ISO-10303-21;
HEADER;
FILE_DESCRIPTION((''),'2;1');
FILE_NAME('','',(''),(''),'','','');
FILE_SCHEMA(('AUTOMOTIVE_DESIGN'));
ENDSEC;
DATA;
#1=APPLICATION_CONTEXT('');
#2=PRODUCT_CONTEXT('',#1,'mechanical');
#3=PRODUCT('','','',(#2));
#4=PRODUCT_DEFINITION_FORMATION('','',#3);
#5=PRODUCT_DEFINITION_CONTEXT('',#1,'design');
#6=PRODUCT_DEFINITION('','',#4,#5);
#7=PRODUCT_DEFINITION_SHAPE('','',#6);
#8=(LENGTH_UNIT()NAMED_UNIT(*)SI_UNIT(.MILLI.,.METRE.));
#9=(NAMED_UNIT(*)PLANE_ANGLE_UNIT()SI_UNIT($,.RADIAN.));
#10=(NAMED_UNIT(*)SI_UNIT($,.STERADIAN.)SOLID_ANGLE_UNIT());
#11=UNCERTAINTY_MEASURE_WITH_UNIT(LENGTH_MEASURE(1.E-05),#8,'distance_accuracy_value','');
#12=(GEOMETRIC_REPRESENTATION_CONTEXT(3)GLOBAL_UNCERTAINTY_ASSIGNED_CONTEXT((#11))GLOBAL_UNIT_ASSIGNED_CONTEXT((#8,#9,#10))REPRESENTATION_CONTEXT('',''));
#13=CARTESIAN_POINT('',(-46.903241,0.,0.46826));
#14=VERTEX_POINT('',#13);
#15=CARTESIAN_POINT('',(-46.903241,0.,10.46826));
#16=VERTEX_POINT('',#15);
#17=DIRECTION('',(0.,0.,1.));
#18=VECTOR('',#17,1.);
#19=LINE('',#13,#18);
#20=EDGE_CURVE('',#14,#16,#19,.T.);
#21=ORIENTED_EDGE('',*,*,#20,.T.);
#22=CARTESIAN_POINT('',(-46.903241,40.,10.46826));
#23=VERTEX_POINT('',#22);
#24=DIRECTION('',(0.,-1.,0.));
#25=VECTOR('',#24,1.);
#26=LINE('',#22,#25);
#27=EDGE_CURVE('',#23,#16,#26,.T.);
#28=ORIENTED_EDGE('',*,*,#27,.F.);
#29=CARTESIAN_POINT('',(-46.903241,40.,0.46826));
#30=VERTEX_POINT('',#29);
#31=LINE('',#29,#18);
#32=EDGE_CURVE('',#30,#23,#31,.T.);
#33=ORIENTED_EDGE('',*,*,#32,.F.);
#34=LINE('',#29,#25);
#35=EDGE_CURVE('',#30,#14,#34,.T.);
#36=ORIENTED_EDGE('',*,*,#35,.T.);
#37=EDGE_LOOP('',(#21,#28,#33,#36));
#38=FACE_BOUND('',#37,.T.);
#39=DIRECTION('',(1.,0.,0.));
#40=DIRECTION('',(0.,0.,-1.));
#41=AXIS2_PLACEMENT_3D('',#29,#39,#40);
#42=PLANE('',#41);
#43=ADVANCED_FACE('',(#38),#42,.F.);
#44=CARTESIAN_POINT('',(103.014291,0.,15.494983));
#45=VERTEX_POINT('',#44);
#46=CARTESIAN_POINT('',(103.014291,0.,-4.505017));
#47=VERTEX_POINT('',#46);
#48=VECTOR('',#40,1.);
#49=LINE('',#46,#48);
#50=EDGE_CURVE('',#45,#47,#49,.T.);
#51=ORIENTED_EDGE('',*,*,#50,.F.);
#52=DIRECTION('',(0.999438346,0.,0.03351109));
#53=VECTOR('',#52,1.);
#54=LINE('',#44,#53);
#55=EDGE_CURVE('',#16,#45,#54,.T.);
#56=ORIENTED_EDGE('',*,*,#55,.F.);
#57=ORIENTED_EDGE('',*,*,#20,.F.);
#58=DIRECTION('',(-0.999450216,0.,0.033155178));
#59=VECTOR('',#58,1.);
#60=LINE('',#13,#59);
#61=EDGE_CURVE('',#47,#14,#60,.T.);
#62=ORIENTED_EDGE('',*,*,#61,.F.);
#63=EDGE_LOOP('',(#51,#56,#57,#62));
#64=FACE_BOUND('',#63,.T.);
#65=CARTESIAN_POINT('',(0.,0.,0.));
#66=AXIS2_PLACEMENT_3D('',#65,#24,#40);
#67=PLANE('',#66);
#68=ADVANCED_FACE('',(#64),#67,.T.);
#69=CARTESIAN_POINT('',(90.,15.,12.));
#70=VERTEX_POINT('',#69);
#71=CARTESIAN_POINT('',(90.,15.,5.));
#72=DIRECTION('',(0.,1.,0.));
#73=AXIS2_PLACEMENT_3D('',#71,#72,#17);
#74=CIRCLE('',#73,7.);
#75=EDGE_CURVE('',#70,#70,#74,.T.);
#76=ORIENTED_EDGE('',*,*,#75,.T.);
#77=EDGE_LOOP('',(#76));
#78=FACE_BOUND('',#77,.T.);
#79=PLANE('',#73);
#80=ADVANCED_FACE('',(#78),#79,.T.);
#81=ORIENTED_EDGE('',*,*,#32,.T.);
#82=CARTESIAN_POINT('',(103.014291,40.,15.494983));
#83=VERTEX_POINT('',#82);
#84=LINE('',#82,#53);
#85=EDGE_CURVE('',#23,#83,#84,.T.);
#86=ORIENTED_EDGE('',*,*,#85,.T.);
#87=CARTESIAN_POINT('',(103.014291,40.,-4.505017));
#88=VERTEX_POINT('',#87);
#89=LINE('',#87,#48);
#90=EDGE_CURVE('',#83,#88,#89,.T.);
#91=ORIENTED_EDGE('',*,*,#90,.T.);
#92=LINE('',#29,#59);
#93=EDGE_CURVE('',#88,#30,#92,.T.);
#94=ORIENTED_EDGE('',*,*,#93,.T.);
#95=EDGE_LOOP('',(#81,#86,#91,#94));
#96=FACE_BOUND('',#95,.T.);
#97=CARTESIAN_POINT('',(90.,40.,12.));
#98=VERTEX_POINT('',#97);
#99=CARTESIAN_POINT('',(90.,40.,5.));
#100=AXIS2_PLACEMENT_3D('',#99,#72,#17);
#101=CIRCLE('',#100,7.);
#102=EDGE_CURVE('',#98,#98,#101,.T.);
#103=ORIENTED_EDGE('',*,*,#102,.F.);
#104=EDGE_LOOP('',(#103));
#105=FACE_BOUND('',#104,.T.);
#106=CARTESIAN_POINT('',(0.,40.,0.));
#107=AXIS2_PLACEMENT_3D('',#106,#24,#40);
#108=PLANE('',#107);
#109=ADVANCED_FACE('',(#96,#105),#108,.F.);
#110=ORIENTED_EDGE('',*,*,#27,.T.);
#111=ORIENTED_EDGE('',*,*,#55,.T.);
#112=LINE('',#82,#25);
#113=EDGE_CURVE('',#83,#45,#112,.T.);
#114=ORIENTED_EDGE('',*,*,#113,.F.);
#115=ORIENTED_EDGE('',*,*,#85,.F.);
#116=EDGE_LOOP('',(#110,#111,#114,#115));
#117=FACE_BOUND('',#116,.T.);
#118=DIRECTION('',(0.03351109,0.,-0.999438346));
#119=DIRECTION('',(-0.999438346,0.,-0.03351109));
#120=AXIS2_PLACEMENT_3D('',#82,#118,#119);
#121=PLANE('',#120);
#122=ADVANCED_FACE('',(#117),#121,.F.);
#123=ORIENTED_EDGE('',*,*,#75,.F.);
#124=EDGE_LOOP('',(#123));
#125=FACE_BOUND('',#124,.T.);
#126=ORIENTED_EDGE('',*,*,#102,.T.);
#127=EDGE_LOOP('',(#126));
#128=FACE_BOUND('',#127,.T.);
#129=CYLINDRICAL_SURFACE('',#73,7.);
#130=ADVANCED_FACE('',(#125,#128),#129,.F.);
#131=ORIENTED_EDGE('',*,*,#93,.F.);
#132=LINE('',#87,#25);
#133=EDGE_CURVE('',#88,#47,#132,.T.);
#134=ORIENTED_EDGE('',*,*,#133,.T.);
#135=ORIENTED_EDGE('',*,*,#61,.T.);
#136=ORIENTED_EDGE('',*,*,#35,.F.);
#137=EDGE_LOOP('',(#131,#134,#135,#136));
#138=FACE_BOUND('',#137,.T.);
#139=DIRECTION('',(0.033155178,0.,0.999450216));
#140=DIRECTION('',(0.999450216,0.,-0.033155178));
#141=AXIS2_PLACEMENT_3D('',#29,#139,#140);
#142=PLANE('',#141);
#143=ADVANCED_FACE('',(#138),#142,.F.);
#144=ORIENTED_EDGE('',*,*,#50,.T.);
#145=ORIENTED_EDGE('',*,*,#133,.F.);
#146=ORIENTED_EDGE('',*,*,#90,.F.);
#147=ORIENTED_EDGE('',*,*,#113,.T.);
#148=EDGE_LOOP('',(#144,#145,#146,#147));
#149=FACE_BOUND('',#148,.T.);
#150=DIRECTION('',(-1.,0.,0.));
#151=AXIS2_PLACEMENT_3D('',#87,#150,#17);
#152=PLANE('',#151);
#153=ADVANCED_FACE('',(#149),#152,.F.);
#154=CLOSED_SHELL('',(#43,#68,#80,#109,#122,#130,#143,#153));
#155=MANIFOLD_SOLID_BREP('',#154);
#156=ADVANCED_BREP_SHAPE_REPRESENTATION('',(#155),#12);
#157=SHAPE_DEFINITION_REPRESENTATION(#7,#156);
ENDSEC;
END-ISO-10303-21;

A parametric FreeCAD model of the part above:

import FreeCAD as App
import Part
import Sketcher

V = App.Vector
Q = App.Units.Quantity

doc = App.newDocument("Part")
body = doc.addObject("PartDesign::Body", "Body")

# Sketch on XZ plane
sketch1 = doc.addObject("Sketcher::SketchObject", "Sketch")
body.addObject(sketch1)
sketch1.AttachmentSupport = (doc.XZ_Plane, [""])
sketch1.MapMode = "FlatFace"
sketch1.addGeometry(Part.LineSegment(V(-47, 0, 0), V(-47, 10, 0)), False)
sketch1.addGeometry(Part.LineSegment(V(-47, 10, 0), V(103, 15, 0)), False)
sketch1.addGeometry(Part.LineSegment(V(103, 15, 0), V(103, -5, 0)), False)
sketch1.addGeometry(Part.LineSegment(V(103, -5, 0), V(-47, 0, 0)), False)
sketch1.addConstraint(Sketcher.Constraint("Coincident", 0, 2, 1, 1))
sketch1.addConstraint(Sketcher.Constraint("Coincident", 1, 2, 2, 1))
sketch1.addConstraint(Sketcher.Constraint("Coincident", 2, 2, 3, 1))
sketch1.addConstraint(Sketcher.Constraint("Coincident", 3, 2, 0, 1))
sketch1.addConstraint(Sketcher.Constraint("Vertical", 0))
sketch1.addConstraint(Sketcher.Constraint("Vertical", 2))
sketch1.addConstraint(Sketcher.Constraint("DistanceY", 0, 1, 0, 2, Q("10 mm")))
sketch1.addConstraint(Sketcher.Constraint("DistanceY", 2, 2, 2, 1, Q("20 mm")))
sketch1.addConstraint(Sketcher.Constraint("Distance", 3, Q("150 mm")))
sketch1.addConstraint(Sketcher.Constraint("Angle", 3, Q("178.1 deg")))
sketch1.addConstraint(Sketcher.Constraint("DistanceX", 0, 2, -1, 1, Q("46.903241 mm")))
sketch1.addConstraint(Sketcher.Constraint("DistanceY", -1, 1, 0, 2, Q("10.46826 mm")))
pad1 = doc.addObject("PartDesign::Pad", "Pad")
body.addObject(pad1)
pad1.Profile = sketch1
pad1.Length = 40
pad1.Reversed = True

# Sketch on XZ plane
sketch2 = doc.addObject("Sketcher::SketchObject", "Sketch001")
body.addObject(sketch2)
sketch2.AttachmentSupport = (doc.XZ_Plane, [""])
sketch2.MapMode = "FlatFace"
sketch2.AttachmentOffset = App.Placement(V(0, 0, -40), App.Rotation())
sketch2.addGeometry(Part.Circle(V(90, 5, 0), V(0, 0, 1), 7), False)
sketch2.addConstraint(Sketcher.Constraint("Diameter", 0, Q("14 mm")))
sketch2.addConstraint(Sketcher.Constraint("DistanceX", -1, 1, 0, 3, Q("90 mm")))
sketch2.addConstraint(Sketcher.Constraint("DistanceY", -1, 1, 0, 3, Q("5 mm")))
pocket1 = doc.addObject("PartDesign::Pocket", "Pocket")
body.addObject(pocket1)
pocket1.Profile = sketch2
pocket1.Length = 25
pocket1.Reversed = True

doc.recompute()
